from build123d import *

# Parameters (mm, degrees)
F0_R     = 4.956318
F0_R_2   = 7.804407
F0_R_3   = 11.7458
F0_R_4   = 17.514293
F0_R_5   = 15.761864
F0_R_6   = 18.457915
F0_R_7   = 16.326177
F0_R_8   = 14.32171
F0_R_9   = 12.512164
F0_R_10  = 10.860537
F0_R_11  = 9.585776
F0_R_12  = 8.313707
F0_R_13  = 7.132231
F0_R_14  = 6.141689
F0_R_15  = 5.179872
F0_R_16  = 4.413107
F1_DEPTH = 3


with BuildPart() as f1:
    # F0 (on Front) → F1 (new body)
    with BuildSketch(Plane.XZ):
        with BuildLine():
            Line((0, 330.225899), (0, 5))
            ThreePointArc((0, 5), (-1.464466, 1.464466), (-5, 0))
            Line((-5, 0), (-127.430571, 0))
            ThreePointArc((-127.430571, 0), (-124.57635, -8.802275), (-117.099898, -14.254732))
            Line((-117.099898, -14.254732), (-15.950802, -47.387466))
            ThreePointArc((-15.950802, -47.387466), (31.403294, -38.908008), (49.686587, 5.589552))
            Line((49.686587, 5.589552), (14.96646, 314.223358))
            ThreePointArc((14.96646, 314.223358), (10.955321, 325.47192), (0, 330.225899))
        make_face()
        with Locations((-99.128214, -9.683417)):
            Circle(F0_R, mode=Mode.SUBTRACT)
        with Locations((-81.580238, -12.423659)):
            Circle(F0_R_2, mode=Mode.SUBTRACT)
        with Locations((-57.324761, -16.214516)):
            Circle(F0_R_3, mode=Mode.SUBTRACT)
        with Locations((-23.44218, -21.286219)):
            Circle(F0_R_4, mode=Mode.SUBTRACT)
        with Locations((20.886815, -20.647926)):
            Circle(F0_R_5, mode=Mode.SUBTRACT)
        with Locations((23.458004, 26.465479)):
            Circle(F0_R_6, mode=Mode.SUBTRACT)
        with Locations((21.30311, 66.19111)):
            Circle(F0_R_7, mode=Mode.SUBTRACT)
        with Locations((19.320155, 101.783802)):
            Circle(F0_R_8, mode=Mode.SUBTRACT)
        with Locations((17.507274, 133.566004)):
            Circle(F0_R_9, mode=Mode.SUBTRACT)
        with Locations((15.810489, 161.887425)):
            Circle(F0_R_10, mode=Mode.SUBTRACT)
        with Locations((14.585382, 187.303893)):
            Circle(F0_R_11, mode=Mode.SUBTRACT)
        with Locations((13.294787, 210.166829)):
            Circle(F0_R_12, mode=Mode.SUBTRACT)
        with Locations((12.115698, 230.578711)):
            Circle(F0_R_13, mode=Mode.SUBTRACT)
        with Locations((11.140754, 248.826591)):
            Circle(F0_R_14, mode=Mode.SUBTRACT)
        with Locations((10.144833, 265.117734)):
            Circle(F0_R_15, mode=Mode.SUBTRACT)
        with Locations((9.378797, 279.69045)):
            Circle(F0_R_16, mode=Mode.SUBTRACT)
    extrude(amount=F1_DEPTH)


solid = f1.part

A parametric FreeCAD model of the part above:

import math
import FreeCAD as App
import Part
import Sketcher
from FreeCAD import Vector
Q = App.Units.Quantity

doc = App.newDocument("Part")
body = doc.addObject("PartDesign::Body", "Body")

sketch1 = body.newObject("Sketcher::SketchObject", "Sketch")
sketch1.AttachmentSupport = (doc.getObject("XZ_Plane"), [""])
sketch1.MapMode = "FlatFace"
sketch1.addGeometry([
    Part.LineSegment(Vector(0, 330.225899, 0), Vector(0, 5, 0)),
    Part.ArcOfCircle(Part.Circle(Vector(-5, 5, 0), Vector(0, 0, 1), 5), math.radians(-90.000004), math.radians(0.000004)),
    Part.LineSegment(Vector(-5, 0, 0), Vector(-127.430571, 0, 0)),
    Part.ArcOfCircle(Part.Circle(Vector(-112.43057, 0.000001, 0), Vector(0, 0, 1), 15.000001), math.radians(-179.999997), math.radians(-108.136899)),
    Part.LineSegment(Vector(-117.099898, -14.254732, 0), Vector(-15.950802, -47.387466, 0)),
    Part.ArcOfCircle(Part.Circle(Vector(-0.000001, 0.000001, 0), Vector(0, 0, 1), 50.000001), math.radians(-108.603428), math.radians(6.41857)),
    Part.LineSegment(Vector(49.686587, 5.589552, 0), Vector(14.96646, 314.223358, 0)),
    Part.ArcOfCircle(Part.Circle(Vector(0, 315.225899, 0), Vector(0, 0, 1), 15), math.radians(-3.83228), math.radians(90)),
    Part.Circle(Vector(-99.128214, -9.683417, 0), Vector(0, 0, 1), 4.956318),
    Part.Circle(Vector(-81.580238, -12.423659, 0), Vector(0, 0, 1), 7.804407),
    Part.Circle(Vector(-57.324761, -16.214516, 0), Vector(0, 0, 1), 11.7458),
    Part.Circle(Vector(-23.44218, -21.286219, 0), Vector(0, 0, 1), 17.514293),
    Part.Circle(Vector(20.886815, -20.647926, 0), Vector(0, 0, 1), 15.761864),
    Part.Circle(Vector(23.458004, 26.465479, 0), Vector(0, 0, 1), 18.457915),
    Part.Circle(Vector(21.30311, 66.19111, 0), Vector(0, 0, 1), 16.326177),
    Part.Circle(Vector(19.320155, 101.783802, 0), Vector(0, 0, 1), 14.32171),
    Part.Circle(Vector(17.507274, 133.566004, 0), Vector(0, 0, 1), 12.512164),
    Part.Circle(Vector(15.810489, 161.887425, 0), Vector(0, 0, 1), 10.860537),
    Part.Circle(Vector(14.585382, 187.303893, 0), Vector(0, 0, 1), 9.585776),
    Part.Circle(Vector(13.294787, 210.166829, 0), Vector(0, 0, 1), 8.313707),
    Part.Circle(Vector(12.115698, 230.578711, 0), Vector(0, 0, 1), 7.132231),
    Part.Circle(Vector(11.140754, 248.826591, 0), Vector(0, 0, 1), 6.141689),
    Part.Circle(Vector(10.144833, 265.117734, 0), Vector(0, 0, 1), 5.179872),
    Part.Circle(Vector(9.378797, 279.69045, 0), Vector(0, 0, 1), 4.413107),
], False)
sketch1.addConstraint([
    Sketcher.Constraint("Tangent", 0, 2, 1, 2),
    Sketcher.Constraint("Tangent", 1, 1, 2, 1),
    Sketcher.Constraint("Coincident", 2, 2, 3, 1),
    Sketcher.Constraint("Tangent", 3, 2, 4, 1),
    Sketcher.Constraint("Coincident", 4, 2, 5, 1),
    Sketcher.Constraint("Tangent", 5, 2, 6, 1),
    Sketcher.Constraint("Coincident", 6, 2, 7, 1),
    Sketcher.Constraint("Coincident", 7, 2, 0, 1),
    Sketcher.Constraint("Vertical", 0),
    Sketcher.Constraint("Horizontal", 2),
    Sketcher.Constraint("Coincident", 5, 3, -1, 1),
    Sketcher.Constraint("Equal", 3, 7),
    Sketcher.Constraint("PointOnObject", 3, 3, -1),
    Sketcher.Constraint("PointOnObject", 7, 3, -2),
    Sketcher.Constraint("PointOnObject", 0, 2, -2),
    Sketcher.Constraint("PointOnObject", 1, 1, -1),
    Sketcher.Constraint("Radius", 1, Q("5 mm")),
    Sketcher.Constraint("Radius", 3, Q("15.000001 mm")),
    Sketcher.Constraint("Radius", 5, Q("50.000001 mm")),
    Sketcher.Constraint("Diameter", 10, Q("23.4916 mm")),
    Sketcher.Constraint("Diameter", 13, Q("36.91583 mm")),
    Sketcher.Constraint("Diameter", 15, Q("28.64342 mm")),
    Sketcher.Constraint("Diameter", 16, Q("25.024328 mm")),
    Sketcher.Constraint("Diameter", 18, Q("19.171552 mm")),
    Sketcher.Constraint("Diameter", 21, Q("12.283378 mm")),
    Sketcher.Constraint("Diameter", 8, Q("9.912636 mm")),
    Sketcher.Constraint("Diameter", 9, Q("15.608814 mm")),
    Sketcher.Constraint("Diameter", 11, Q("35.028586 mm")),
    Sketcher.Constraint("Diameter", 12, Q("31.523728 mm")),
    Sketcher.Constraint("Diameter", 14, Q("32.652354 mm")),
    Sketcher.Constraint("Diameter", 17, Q("21.721074 mm")),
    Sketcher.Constraint("Diameter", 19, Q("16.627414 mm")),
    Sketcher.Constraint("Diameter", 20, Q("14.264462 mm")),
    Sketcher.Constraint("Diameter", 22, Q("10.359744 mm")),
    Sketcher.Constraint("Diameter", 23, Q("8.826214 mm")),
    Sketcher.Constraint("DistanceY", 0, 2, 0, 1, Q("325.225899 mm")),
    Sketcher.Constraint("DistanceX", 2, 2, 2, 1, Q("122.430571 mm")),
    Sketcher.Constraint("DistanceY", -1, 1, 15, 3, Q("101.783802 mm")),
    Sketcher.Constraint("DistanceY", 10, 3, 8, 3, Q("6.531099 mm")),
    Sketcher.Constraint("DistanceY", 11, 3, 8, 3, Q("11.602802 mm")),
    Sketcher.Constraint("DistanceY", 15, 3, 16, 3, Q("31.782202 mm")),
    Sketcher.Constraint("DistanceY", 18, 3, 21, 3, Q("61.522698 mm")),
    Sketcher.Constraint("DistanceX", 23, 3, 20, 3, Q("2.736901 mm")),
    Sketcher.Constraint("DistanceX", 4, 2, 5, 3, Q("15.950801 mm")),
    Sketcher.Constraint("DistanceY", 9, 3, -1, 1, Q("12.423659 mm")),
    Sketcher.Constraint("DistanceX", 10, 3, -1, 1, Q("57.324761 mm")),
    Sketcher.Constraint("DistanceX", 11, 3, -1, 1, Q("23.44218 mm")),
    Sketcher.Constraint("DistanceY", 11, 3, -1, 1, Q("21.286219 mm")),
    Sketcher.Constraint("DistanceY", -1, 1, 13, 3, Q("26.465479 mm")),
    Sketcher.Constraint("DistanceX", -1, 1, 14, 3, Q("21.30311 mm")),
    Sketcher.Constraint("DistanceY", -1, 1, 14, 3, Q("66.19111 mm")),
    Sketcher.Constraint("DistanceX", -1, 1, 17, 3, Q("15.810489 mm")),
    Sketcher.Constraint("DistanceX", -1, 1, 18, 3, Q("14.585382 mm")),
    Sketcher.Constraint("DistanceY", -1, 1, 19, 3, Q("210.166829 mm")),
    Sketcher.Constraint("DistanceY", -1, 1, 20, 3, Q("230.578711 mm")),
    Sketcher.Constraint("DistanceY", -1, 1, 21, 3, Q("248.826591 mm")),
    Sketcher.Constraint("DistanceY", -1, 1, 23, 3, Q("279.69045 mm")),
    Sketcher.Constraint("DistanceX", -1, 1, 6, 2, Q("14.96646 mm")),
    Sketcher.Constraint("DistanceX", 9, 3, 1, 3, Q("76.580238 mm")),
    Sketcher.Constraint("DistanceY", 12, 3, 10, 3, Q("4.43341 mm")),
    Sketcher.Constraint("DistanceX", 12, 3, 13, 3, Q("2.571189 mm")),
    Sketcher.Constraint("DistanceX", 15, 3, 13, 3, Q("4.137849 mm")),
    Sketcher.Constraint("DistanceX", 16, 3, 15, 3, Q("1.812881 mm")),
    Sketcher.Constraint("DistanceY", 16, 3, 17, 3, Q("28.321421 mm")),
    Sketcher.Constraint("DistanceX", 18, 3, 16, 3, Q("2.921892 mm")),
    Sketcher.Constraint("DistanceX", 19, 3, 15, 3, Q("6.025368 mm")),
    Sketcher.Constraint("DistanceX", 20, 3, 19, 3, Q("1.179089 mm")),
    Sketcher.Constraint("DistanceX", 22, 3, 21, 3, Q("0.995921 mm")),
    Sketcher.Constraint("DistanceX", 22, 3, 18, 3, Q("4.440549 mm")),
    Sketcher.Constraint("DistanceY", 18, 3, 22, 3, Q("77.813841 mm")),
    Sketcher.Constraint("DistanceX", 8, 3, -1, 1, Q("99.128214 mm")),
])
pad1 = body.newObject("PartDesign::Pad", "Pad")
pad1.Profile = sketch1
pad1.Length = 3

doc.recompute()
